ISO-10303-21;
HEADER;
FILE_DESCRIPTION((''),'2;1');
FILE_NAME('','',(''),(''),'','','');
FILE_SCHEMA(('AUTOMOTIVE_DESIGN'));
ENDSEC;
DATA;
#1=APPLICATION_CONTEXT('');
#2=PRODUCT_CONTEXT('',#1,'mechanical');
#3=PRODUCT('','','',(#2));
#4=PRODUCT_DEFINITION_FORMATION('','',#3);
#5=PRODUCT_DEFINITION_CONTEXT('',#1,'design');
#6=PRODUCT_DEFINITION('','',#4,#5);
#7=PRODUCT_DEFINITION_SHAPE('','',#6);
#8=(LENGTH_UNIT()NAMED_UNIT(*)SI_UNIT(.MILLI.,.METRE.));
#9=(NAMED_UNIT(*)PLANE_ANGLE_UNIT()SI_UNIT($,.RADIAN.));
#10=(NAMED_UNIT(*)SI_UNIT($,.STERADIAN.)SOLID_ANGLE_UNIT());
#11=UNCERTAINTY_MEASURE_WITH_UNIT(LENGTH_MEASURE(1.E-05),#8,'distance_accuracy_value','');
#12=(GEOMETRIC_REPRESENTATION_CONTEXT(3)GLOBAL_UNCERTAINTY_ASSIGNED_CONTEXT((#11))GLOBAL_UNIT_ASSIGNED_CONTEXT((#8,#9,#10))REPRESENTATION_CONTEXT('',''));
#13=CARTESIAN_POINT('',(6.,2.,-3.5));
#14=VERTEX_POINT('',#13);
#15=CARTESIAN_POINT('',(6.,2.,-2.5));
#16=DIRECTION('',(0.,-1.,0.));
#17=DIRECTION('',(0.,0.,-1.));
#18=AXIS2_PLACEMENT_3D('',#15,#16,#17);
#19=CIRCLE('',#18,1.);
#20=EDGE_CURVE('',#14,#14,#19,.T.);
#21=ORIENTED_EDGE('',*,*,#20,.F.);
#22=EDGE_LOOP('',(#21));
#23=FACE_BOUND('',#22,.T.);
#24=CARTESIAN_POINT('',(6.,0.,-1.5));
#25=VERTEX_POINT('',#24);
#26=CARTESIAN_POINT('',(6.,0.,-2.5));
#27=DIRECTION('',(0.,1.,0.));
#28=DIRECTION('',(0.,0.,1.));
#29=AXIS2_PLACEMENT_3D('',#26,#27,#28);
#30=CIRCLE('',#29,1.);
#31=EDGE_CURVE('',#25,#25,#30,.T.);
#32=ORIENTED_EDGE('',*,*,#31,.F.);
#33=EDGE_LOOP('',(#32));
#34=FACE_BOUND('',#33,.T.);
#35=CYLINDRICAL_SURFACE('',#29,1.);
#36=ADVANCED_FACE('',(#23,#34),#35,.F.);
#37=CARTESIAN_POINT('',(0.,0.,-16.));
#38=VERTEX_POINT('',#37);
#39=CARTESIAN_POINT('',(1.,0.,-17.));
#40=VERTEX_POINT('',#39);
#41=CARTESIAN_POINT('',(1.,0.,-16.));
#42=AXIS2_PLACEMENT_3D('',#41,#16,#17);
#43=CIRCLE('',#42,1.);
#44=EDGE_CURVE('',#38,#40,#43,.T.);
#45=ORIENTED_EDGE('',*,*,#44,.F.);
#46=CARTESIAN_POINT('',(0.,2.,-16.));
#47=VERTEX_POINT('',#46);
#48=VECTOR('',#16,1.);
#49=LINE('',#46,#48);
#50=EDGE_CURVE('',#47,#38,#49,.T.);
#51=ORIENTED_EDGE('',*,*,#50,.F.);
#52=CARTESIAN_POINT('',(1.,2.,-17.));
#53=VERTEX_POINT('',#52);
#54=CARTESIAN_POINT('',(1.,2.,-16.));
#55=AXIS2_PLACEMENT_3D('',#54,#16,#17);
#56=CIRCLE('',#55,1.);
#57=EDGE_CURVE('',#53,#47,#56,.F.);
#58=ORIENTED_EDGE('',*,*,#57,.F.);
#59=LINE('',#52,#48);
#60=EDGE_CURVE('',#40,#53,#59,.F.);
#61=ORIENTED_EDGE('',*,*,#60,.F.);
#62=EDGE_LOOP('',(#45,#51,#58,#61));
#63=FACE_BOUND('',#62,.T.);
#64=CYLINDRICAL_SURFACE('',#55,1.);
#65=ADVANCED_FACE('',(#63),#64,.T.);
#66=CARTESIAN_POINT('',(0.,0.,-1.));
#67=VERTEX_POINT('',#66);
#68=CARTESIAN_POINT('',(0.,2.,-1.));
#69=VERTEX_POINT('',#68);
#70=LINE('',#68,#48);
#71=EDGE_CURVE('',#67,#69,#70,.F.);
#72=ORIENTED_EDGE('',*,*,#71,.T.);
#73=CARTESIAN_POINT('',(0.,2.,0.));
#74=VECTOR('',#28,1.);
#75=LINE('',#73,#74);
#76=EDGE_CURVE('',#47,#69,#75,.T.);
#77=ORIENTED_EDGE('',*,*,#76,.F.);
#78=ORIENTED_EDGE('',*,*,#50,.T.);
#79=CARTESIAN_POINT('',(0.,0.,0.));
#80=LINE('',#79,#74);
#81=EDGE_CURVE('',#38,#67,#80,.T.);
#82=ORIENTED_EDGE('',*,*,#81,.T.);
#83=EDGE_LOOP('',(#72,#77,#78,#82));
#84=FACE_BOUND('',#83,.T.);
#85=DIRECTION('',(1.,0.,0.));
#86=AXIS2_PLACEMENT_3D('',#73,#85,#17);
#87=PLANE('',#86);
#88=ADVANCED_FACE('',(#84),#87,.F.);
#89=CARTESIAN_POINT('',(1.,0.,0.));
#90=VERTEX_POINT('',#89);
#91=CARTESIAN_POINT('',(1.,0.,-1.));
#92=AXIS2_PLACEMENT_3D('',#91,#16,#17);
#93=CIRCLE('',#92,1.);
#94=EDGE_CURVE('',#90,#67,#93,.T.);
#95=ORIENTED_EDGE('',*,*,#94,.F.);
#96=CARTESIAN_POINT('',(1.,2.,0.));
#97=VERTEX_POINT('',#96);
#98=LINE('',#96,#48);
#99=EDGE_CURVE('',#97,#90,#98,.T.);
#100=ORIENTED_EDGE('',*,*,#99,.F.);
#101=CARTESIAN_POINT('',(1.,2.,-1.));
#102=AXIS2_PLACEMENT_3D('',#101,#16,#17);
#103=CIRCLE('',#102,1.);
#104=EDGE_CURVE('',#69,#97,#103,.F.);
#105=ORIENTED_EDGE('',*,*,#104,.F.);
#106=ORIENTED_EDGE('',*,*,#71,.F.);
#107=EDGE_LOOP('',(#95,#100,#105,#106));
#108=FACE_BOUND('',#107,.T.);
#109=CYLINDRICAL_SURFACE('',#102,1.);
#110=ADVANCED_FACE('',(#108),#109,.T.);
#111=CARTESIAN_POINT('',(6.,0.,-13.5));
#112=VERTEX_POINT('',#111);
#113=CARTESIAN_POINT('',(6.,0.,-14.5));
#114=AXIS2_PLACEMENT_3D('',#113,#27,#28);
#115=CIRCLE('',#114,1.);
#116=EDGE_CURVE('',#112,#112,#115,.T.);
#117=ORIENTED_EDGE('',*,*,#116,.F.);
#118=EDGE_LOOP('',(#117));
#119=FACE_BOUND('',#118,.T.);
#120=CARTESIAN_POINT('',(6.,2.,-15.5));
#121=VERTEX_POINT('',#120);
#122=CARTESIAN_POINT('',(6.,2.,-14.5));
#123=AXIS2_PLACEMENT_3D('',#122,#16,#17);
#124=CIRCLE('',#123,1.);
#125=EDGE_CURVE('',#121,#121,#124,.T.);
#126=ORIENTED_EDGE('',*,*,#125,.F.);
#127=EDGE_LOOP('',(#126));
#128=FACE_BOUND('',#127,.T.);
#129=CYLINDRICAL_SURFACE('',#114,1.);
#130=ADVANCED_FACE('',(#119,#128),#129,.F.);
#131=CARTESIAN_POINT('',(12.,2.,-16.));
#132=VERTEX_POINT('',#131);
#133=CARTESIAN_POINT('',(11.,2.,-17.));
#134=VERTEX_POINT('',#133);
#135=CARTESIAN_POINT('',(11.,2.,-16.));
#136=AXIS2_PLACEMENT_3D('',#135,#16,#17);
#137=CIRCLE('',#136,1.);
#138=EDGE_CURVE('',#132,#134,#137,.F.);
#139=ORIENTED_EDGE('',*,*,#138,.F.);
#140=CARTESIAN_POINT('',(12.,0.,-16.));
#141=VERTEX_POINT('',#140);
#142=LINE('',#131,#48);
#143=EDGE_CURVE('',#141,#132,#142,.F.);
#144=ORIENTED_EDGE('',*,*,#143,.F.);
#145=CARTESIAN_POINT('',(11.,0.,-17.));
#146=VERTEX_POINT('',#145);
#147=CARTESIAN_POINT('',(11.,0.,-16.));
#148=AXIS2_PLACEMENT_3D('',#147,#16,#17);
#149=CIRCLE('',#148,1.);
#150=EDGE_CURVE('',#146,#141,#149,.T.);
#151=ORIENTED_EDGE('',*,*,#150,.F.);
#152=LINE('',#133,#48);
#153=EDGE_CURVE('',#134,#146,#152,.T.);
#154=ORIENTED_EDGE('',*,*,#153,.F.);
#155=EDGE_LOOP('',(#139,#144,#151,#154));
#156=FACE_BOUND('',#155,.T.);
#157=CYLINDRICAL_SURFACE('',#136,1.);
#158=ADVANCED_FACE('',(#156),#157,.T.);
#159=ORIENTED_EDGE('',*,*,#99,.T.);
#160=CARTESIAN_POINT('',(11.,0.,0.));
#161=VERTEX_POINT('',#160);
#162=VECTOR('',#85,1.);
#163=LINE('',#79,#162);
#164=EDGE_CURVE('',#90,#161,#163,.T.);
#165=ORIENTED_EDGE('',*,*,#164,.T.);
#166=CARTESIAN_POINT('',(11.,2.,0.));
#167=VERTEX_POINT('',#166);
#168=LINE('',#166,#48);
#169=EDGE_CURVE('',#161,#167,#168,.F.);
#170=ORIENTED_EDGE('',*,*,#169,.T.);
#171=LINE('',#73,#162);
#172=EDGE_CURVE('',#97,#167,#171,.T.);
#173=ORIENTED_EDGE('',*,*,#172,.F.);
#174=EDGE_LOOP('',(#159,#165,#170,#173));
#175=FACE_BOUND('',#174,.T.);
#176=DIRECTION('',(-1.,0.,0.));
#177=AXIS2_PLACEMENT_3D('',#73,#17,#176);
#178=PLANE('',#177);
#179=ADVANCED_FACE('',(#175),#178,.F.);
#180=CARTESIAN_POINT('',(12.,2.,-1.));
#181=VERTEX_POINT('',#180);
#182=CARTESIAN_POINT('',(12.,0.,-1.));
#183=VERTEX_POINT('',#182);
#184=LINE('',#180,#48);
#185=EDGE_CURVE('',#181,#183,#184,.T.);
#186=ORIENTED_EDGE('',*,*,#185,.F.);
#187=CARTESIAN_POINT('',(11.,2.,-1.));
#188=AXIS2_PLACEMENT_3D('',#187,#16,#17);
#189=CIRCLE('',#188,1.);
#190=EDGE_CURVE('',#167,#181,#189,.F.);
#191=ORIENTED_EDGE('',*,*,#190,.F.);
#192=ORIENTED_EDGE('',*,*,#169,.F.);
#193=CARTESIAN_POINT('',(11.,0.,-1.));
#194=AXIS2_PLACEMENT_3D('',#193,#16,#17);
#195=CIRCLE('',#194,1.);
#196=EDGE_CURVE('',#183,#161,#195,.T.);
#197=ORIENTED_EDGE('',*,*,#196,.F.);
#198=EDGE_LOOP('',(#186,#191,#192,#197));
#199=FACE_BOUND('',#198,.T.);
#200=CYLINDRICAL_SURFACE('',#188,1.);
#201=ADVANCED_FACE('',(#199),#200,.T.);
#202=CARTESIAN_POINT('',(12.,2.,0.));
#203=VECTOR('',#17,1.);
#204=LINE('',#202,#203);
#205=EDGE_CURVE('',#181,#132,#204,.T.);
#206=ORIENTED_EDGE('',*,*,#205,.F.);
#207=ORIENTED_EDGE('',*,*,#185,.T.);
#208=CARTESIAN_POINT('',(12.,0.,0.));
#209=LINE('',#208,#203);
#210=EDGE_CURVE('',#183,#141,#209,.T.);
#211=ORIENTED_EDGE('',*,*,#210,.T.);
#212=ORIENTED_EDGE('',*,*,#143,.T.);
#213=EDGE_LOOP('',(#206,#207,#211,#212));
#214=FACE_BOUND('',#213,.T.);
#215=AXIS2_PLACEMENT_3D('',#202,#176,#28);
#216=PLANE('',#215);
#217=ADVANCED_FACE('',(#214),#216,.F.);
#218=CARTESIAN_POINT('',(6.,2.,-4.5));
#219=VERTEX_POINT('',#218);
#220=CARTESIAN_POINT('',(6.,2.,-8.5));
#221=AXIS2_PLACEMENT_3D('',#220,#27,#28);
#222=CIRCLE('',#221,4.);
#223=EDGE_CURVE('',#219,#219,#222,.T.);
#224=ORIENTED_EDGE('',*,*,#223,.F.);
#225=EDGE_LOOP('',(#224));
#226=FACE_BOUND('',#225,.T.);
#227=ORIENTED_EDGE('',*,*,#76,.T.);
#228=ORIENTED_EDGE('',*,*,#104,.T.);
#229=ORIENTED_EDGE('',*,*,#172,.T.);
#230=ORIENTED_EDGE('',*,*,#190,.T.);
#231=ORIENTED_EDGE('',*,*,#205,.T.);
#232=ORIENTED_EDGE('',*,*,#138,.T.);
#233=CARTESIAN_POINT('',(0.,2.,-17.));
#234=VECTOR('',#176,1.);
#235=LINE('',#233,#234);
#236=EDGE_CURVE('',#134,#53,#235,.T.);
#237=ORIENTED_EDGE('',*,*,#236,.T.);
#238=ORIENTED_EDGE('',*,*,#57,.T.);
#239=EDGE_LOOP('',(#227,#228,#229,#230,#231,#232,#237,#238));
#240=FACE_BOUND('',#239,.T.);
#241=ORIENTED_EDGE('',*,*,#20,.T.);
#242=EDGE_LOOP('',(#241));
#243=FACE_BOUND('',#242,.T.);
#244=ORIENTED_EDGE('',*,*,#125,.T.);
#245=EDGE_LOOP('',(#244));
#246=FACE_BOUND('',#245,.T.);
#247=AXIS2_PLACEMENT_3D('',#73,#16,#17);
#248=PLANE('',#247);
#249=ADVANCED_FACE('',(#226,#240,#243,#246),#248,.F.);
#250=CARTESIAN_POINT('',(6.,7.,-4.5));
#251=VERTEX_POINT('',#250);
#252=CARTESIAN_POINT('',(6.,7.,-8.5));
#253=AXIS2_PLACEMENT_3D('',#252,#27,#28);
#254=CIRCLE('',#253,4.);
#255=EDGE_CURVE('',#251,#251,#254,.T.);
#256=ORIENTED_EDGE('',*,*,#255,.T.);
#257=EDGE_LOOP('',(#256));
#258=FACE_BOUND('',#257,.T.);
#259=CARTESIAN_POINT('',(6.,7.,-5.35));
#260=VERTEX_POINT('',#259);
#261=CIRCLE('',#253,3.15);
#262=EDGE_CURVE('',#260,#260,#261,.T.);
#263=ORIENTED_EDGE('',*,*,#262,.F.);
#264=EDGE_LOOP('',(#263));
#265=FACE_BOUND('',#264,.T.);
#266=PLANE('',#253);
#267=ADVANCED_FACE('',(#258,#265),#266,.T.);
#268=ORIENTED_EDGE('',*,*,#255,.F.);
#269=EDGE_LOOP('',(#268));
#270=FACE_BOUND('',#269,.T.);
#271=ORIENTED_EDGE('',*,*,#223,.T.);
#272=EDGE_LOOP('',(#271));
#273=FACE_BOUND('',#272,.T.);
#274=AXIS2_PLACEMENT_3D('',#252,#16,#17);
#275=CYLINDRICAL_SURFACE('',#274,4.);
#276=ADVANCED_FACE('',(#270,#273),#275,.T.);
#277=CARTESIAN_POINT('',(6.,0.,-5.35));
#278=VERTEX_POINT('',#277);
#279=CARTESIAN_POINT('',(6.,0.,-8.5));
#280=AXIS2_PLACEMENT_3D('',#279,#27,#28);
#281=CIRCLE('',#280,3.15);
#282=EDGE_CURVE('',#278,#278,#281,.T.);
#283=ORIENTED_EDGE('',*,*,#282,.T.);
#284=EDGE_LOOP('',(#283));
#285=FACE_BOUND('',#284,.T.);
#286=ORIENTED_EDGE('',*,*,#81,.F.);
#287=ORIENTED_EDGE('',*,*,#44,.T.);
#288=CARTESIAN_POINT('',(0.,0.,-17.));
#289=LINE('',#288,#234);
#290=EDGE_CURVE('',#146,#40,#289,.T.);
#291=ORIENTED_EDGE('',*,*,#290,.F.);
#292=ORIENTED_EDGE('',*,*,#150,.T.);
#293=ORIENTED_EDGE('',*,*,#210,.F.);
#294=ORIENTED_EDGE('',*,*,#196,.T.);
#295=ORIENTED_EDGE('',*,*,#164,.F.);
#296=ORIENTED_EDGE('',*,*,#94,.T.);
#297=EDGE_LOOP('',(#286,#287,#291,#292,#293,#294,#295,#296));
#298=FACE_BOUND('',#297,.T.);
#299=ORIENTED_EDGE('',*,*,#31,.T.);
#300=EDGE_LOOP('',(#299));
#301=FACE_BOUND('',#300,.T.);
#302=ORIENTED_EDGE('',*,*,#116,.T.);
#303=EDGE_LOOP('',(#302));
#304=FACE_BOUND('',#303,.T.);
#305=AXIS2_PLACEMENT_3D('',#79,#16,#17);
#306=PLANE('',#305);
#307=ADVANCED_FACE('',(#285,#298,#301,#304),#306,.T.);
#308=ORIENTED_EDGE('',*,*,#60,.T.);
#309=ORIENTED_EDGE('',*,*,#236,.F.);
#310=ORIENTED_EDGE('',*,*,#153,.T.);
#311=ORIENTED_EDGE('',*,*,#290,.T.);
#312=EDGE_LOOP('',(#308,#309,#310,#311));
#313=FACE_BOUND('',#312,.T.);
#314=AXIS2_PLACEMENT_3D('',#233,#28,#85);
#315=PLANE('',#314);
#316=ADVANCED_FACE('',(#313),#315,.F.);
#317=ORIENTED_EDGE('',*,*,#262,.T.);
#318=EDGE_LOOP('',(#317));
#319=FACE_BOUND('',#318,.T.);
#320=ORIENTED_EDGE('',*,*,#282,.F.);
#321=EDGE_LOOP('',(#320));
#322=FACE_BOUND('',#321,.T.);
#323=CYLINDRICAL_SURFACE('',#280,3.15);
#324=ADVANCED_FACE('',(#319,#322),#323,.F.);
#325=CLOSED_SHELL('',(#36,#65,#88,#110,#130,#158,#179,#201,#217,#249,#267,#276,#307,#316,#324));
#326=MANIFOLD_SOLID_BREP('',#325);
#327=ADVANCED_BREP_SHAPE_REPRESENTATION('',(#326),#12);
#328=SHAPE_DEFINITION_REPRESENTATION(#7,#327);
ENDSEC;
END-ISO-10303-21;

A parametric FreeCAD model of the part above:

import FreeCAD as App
import Part
import Sketcher


def edges_at(feature, points):
    """Names of the edges that pass closest to the given points."""
    edges = feature.Shape.Edges
    near = lambda p: min(range(len(edges)), key=lambda i: edges[i].distToShape(Part.Vertex(*p))[0])
    return sorted({f"Edge{near(p) + 1}" for p in points})


def add_polygon(sketch, points):
    """Adds a closed chain of lines whose ends are joined by coincident constraints."""
    first, n = sketch.GeometryCount, len(points)
    for a, b in zip(points, points[1:] + points[:1]):
        sketch.addGeometry(Part.LineSegment(App.Vector(*a, 0), App.Vector(*b, 0)), False)
    for i in range(n):
        sketch.addConstraint(Sketcher.Constraint("Coincident", first + i, 2, first + (i + 1) % n, 1))

doc = App.newDocument("Part")
body = doc.addObject("PartDesign::Body", "Body")

sketch1 = doc.addObject("Sketcher::SketchObject", "Sketch")
body.addObject(sketch1)
sketch1.AttachmentSupport = (doc.XZ_Plane, [""])
sketch1.MapMode = "FlatFace"
add_polygon(sketch1, [(0, -17), (0, 0), (12, 0), (12, -17)])
sketch1.addConstraint([
    Sketcher.Constraint("Vertical", 0),
    Sketcher.Constraint("Horizontal", 1),
    Sketcher.Constraint("Vertical", 2),
    Sketcher.Constraint("Horizontal", 3),
    Sketcher.Constraint("Coincident", 0, 2, -1, 1),
    Sketcher.Constraint("DistanceX", 1, 1, 1, 2, 12.0),
    Sketcher.Constraint("DistanceY", 0, 1, 0, 2, 17.0),
])
pad1 = doc.addObject("PartDesign::Pad", "Pad")
body.addObject(pad1)
pad1.Profile = sketch1
pad1.Length = 2
pad1.Reversed = True

sketch2 = doc.addObject("Sketcher::SketchObject", "Sketch001")
body.addObject(sketch2)
sketch2.AttachmentSupport = (doc.XZ_Plane, [""])
sketch2.MapMode = "FlatFace"
sketch2.AttachmentOffset = App.Placement(App.Vector(0, 0, -2), App.Rotation())
sketch2.addGeometry(Part.Circle(App.Vector(6, -8.5, 0), App.Vector(0, 0, 1), 4), False)
sketch2.addConstraint([
    Sketcher.Constraint("Diameter", 0, 8.0),
    Sketcher.Constraint("DistanceX", -1, 1, 0, 3, 6.0),
    Sketcher.Constraint("DistanceY", 0, 3, -1, 1, 8.5),
])
pad2 = doc.addObject("PartDesign::Pad", "Pad001")
body.addObject(pad2)
pad2.Profile = sketch2
pad2.Length = 5
pad2.Reversed = True

sketch3 = doc.addObject("Sketcher::SketchObject", "Sketch002")
body.addObject(sketch3)
sketch3.AttachmentSupport = (doc.XZ_Plane, [""])
sketch3.MapMode = "FlatFace"
sketch3.AttachmentOffset = App.Placement(App.Vector(0, 0, -7), App.Rotation())
sketch3.addGeometry([
    Part.Circle(App.Vector(6, -8.5, 0), App.Vector(0, 0, 1), 3.1),
    Part.Circle(App.Vector(6, -14.5, 0), App.Vector(0, 0, 1), 1),
    Part.Circle(App.Vector(6, -2.5, 0), App.Vector(0, 0, 1), 1),
], False)
sketch3.addConstraint([
    Sketcher.Constraint("Equal", 1, 2),
    Sketcher.Constraint("Vertical", 0, 3, 1, 3),
    Sketcher.Constraint("Vertical", 1, 3, 2, 3),
    Sketcher.Constraint("Diameter", 1, 2.0),
    Sketcher.Constraint("Diameter", 0, 6.3),
    Sketcher.Constraint("DistanceX", -1, 1, 0, 3, 6.0),
    Sketcher.Constraint("DistanceY", 1, 3, 0, 3, 6.0),
    Sketcher.Constraint("DistanceY", 0, 3, 2, 3, 6.0),
    Sketcher.Constraint("DistanceY", 0, 3, -1, 1, 8.5),
])
pocket1 = doc.addObject("PartDesign::Pocket", "Pocket")
body.addObject(pocket1)
pocket1.Profile = sketch3
pocket1.Type = "ThroughAll"
pocket1.Reversed = True
doc.recompute()

fillet = doc.addObject("PartDesign::Fillet", "Fillet")
body.addObject(fillet)
fillet.Base = (pocket1, edges_at(pocket1, [
    (0, 1, -17),
    (12, 1, -17),
    (12, 1, 0),
    (0, 1, 0),
]))
fillet.Radius = 1

doc.recompute()
